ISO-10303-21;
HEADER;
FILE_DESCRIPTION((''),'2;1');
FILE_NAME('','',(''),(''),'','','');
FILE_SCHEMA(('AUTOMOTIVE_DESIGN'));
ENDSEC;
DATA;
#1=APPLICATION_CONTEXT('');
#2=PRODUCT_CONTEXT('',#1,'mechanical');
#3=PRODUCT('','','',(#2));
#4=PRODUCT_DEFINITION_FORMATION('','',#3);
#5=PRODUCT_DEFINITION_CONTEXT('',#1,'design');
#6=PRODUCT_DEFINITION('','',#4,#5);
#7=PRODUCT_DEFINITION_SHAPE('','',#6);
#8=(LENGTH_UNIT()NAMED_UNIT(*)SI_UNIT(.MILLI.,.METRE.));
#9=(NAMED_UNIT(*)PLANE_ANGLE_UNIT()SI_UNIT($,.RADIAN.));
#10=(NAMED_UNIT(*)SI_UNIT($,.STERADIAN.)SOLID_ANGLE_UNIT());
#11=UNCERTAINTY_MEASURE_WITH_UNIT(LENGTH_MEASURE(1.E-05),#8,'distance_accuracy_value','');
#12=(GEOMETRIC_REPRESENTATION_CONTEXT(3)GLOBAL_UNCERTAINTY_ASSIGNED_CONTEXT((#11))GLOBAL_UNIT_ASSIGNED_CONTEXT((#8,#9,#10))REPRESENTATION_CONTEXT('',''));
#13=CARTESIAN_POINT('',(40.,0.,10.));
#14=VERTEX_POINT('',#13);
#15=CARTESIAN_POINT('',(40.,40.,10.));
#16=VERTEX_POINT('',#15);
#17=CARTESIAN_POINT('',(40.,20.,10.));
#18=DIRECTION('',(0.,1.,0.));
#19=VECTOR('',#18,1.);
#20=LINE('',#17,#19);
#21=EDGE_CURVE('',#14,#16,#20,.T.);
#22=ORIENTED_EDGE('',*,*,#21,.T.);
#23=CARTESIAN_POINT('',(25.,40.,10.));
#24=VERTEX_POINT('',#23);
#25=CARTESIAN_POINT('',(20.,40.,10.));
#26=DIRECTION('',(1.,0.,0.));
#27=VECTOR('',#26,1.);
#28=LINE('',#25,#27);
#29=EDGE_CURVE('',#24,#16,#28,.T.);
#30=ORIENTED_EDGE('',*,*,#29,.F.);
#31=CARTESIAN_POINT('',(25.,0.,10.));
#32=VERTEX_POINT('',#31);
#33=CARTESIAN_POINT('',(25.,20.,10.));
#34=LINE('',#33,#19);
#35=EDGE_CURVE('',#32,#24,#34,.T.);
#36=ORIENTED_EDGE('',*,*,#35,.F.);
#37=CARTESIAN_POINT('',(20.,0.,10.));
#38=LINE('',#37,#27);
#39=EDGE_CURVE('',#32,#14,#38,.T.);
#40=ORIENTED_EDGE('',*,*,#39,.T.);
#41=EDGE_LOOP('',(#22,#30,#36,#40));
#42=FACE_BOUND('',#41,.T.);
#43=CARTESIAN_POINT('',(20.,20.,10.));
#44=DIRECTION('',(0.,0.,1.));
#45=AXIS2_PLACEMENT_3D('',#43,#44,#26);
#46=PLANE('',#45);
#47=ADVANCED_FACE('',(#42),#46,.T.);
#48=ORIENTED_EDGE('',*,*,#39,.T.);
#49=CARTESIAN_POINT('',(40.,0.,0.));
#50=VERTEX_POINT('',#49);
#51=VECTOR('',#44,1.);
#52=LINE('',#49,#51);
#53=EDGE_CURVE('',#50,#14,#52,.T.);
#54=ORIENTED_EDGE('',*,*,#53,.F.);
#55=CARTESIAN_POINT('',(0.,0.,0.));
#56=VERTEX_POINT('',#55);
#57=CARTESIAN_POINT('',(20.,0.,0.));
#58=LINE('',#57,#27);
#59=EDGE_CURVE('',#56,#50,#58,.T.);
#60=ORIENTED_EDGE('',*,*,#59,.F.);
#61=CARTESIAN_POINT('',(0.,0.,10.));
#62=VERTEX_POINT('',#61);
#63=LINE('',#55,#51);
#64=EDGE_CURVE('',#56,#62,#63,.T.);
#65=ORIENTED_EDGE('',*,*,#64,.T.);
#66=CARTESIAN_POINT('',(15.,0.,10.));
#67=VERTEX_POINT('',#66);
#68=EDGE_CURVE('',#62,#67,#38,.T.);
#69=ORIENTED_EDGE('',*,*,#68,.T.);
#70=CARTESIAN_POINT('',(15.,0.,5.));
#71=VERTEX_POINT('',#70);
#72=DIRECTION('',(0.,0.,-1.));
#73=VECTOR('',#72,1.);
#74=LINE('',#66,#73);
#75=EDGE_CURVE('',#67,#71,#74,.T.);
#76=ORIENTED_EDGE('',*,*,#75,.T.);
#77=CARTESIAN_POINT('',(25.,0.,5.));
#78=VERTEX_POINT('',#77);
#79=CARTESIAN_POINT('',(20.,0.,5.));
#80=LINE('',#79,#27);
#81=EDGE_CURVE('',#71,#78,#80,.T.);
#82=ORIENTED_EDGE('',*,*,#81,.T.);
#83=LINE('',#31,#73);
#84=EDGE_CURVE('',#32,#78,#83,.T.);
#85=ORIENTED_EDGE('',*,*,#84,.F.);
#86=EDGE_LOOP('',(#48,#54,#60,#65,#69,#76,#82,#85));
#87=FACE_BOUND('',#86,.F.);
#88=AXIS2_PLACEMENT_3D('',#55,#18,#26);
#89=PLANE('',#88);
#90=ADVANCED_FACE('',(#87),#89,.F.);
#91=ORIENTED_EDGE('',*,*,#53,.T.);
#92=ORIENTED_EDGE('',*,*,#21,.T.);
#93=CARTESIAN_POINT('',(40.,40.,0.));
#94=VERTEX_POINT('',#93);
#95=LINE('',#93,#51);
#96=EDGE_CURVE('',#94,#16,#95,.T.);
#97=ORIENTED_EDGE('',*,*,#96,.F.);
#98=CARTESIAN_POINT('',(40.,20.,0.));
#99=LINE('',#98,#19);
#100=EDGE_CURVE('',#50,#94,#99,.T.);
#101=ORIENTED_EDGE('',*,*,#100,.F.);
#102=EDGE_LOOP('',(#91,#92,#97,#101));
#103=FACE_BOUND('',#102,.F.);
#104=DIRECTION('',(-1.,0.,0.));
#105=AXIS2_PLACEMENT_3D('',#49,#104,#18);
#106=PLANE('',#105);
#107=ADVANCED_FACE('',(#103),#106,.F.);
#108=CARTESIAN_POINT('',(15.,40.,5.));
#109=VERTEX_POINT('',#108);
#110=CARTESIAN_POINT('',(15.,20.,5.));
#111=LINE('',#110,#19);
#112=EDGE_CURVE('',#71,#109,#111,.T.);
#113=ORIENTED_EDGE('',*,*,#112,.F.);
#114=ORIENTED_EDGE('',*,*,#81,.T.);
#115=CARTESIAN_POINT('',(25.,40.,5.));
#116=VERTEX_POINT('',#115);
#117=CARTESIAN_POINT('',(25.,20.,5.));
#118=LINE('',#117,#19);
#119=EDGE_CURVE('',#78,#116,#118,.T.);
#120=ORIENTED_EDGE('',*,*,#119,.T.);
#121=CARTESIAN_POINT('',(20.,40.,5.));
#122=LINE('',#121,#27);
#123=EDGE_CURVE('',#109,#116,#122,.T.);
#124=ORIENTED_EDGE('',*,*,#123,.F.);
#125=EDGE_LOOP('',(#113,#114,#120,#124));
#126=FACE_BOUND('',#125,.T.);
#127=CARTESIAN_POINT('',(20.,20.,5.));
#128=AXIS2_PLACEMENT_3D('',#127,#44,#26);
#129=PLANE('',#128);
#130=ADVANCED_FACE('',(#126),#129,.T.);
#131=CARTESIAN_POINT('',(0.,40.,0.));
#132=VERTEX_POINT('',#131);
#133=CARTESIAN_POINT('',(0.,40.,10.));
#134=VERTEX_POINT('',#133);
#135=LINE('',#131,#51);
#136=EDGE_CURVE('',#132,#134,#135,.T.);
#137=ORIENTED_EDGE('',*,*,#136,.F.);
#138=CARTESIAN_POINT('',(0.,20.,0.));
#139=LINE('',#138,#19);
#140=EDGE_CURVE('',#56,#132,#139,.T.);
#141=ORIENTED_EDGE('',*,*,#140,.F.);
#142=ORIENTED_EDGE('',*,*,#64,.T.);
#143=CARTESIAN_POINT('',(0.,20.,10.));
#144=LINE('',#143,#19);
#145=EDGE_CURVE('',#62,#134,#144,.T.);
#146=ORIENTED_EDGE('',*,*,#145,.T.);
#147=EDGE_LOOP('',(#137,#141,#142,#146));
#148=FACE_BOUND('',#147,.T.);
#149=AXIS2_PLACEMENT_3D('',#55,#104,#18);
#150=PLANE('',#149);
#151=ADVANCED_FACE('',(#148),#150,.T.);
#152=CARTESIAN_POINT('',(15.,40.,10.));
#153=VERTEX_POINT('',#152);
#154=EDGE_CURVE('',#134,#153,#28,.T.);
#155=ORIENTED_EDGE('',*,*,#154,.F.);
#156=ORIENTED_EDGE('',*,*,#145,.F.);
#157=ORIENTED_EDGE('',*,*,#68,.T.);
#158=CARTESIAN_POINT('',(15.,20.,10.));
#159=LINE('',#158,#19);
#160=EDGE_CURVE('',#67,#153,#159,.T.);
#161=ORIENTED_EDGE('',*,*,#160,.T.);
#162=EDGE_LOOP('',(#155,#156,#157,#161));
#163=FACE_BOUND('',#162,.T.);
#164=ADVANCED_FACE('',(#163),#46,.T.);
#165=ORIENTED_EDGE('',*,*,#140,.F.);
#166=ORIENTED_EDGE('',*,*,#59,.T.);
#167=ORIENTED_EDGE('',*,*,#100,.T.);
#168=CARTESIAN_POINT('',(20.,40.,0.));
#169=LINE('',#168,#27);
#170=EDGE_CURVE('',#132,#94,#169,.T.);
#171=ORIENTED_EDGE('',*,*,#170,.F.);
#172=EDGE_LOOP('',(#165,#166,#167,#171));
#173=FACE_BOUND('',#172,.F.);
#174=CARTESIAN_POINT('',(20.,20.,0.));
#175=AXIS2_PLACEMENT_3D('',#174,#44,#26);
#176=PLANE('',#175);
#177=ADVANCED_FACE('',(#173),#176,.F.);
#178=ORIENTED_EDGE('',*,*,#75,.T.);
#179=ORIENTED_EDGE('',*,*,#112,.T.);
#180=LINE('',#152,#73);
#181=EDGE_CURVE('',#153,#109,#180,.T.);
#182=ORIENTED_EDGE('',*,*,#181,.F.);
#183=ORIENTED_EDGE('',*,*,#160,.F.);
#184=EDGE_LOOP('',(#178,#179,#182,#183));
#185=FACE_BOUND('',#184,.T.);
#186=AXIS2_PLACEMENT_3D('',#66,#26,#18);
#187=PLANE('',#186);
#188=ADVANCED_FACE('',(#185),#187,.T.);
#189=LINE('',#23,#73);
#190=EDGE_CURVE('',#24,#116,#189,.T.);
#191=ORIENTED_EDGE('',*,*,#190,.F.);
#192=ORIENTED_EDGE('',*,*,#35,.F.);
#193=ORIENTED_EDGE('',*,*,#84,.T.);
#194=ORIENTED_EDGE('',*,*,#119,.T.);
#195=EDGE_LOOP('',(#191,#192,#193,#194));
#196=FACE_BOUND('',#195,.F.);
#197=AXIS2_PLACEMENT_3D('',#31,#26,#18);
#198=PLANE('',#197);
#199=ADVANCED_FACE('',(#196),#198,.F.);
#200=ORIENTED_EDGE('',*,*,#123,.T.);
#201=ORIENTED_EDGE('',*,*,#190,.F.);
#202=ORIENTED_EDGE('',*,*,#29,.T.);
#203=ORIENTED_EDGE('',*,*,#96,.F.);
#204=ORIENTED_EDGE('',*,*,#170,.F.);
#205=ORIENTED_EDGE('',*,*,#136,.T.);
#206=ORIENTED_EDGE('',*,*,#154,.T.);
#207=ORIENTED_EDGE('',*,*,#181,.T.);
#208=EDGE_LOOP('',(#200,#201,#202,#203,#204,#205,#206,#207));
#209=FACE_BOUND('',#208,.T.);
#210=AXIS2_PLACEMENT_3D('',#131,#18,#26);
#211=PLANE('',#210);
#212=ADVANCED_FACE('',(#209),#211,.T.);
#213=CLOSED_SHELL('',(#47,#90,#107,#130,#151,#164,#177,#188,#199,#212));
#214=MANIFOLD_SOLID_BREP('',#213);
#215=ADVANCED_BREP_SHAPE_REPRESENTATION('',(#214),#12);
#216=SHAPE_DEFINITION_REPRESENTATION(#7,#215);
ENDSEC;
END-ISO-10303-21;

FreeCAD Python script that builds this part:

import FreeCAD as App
import Part
import Sketcher


def add_polygon(sketch, points):
    """Adds a closed chain of lines whose ends are joined by coincident constraints."""
    first, n = sketch.GeometryCount, len(points)
    for a, b in zip(points, points[1:] + points[:1]):
        sketch.addGeometry(Part.LineSegment(App.Vector(*a, 0), App.Vector(*b, 0)), False)
    for i in range(n):
        sketch.addConstraint(Sketcher.Constraint("Coincident", first + i, 2, first + (i + 1) % n, 1))

doc = App.newDocument("Part")
params = doc.addObject("Spreadsheet::Sheet", "Params")
for row, (alias, value) in enumerate([
    ("sketch1_width", "40 mm"),
    ("pad1_length", "10 mm"),
    ("sketch2_width", "10 mm"),
    ("sketch2_height", "40 mm"),
    ("pocket1_length", "5 mm"),
], start=1):
    params.set(f"A{row}", alias)
    params.set(f"B{row}", "=" + value)
    params.setAlias(f"B{row}", alias)

body = doc.addObject("PartDesign::Body", "Body")

# Sketch on XY plane
sketch1 = body.newObject("Sketcher::SketchObject", "Sketch")
sketch1.AttachmentSupport = (doc.getObject("XY_Plane"), [""])
sketch1.MapMode = "FlatFace"
add_polygon(sketch1, [(0, 40), (0, 0), (40, 0), (40, 40)])  # lines 0-3
sketch1.addConstraint([
    Sketcher.Constraint("Vertical", 0),
    Sketcher.Constraint("Horizontal", 1),
    Sketcher.Constraint("Vertical", 2),
    Sketcher.Constraint("Horizontal", 3),
    Sketcher.Constraint("Coincident", 0, 2, -1, 1),
    Sketcher.Constraint("Equal", 3, 0),
    Sketcher.Constraint("DistanceX", 1, 1, 1, 2, 40.0),
])
sketch1.setExpression("Constraints[10]", "Params.sketch1_width")
pad1 = body.newObject("PartDesign::Pad", "Pad")
pad1.Profile = sketch1
pad1.setExpression("Length", "Params.pad1_length")

# Sketch on XY plane
sketch2 = body.newObject("Sketcher::SketchObject", "Sketch001")
sketch2.AttachmentSupport = (doc.getObject("XY_Plane"), [""])
sketch2.MapMode = "FlatFace"
sketch2.AttachmentOffset = App.Placement(App.Vector(0, 0, 10), App.Rotation())
add_polygon(sketch2, [(15, 40), (15, 0), (25, 0), (25, 40)])  # lines 0-3
sketch2.addConstraint([
    Sketcher.Constraint("Vertical", 0),
    Sketcher.Constraint("Horizontal", 1),
    Sketcher.Constraint("Vertical", 2),
    Sketcher.Constraint("Horizontal", 3),
    Sketcher.Constraint("PointOnObject", 0, 2, -1),
    Sketcher.Constraint("DistanceX", 1, 1, 1, 2, 10.0),
    Sketcher.Constraint("DistanceY", 0, 2, 0, 1, 40.0),
    Sketcher.Constraint("DistanceX", -1, 1, 0, 2, 15.0),
])
sketch2.setExpression("Constraints[9]", "Params.sketch2_width")
sketch2.setExpression("Constraints[10]", "Params.sketch2_height")
pocket1 = body.newObject("PartDesign::Pocket", "Pocket")
pocket1.Profile = sketch2
pocket1.setExpression("Length", "Params.pocket1_length")

doc.recompute()
